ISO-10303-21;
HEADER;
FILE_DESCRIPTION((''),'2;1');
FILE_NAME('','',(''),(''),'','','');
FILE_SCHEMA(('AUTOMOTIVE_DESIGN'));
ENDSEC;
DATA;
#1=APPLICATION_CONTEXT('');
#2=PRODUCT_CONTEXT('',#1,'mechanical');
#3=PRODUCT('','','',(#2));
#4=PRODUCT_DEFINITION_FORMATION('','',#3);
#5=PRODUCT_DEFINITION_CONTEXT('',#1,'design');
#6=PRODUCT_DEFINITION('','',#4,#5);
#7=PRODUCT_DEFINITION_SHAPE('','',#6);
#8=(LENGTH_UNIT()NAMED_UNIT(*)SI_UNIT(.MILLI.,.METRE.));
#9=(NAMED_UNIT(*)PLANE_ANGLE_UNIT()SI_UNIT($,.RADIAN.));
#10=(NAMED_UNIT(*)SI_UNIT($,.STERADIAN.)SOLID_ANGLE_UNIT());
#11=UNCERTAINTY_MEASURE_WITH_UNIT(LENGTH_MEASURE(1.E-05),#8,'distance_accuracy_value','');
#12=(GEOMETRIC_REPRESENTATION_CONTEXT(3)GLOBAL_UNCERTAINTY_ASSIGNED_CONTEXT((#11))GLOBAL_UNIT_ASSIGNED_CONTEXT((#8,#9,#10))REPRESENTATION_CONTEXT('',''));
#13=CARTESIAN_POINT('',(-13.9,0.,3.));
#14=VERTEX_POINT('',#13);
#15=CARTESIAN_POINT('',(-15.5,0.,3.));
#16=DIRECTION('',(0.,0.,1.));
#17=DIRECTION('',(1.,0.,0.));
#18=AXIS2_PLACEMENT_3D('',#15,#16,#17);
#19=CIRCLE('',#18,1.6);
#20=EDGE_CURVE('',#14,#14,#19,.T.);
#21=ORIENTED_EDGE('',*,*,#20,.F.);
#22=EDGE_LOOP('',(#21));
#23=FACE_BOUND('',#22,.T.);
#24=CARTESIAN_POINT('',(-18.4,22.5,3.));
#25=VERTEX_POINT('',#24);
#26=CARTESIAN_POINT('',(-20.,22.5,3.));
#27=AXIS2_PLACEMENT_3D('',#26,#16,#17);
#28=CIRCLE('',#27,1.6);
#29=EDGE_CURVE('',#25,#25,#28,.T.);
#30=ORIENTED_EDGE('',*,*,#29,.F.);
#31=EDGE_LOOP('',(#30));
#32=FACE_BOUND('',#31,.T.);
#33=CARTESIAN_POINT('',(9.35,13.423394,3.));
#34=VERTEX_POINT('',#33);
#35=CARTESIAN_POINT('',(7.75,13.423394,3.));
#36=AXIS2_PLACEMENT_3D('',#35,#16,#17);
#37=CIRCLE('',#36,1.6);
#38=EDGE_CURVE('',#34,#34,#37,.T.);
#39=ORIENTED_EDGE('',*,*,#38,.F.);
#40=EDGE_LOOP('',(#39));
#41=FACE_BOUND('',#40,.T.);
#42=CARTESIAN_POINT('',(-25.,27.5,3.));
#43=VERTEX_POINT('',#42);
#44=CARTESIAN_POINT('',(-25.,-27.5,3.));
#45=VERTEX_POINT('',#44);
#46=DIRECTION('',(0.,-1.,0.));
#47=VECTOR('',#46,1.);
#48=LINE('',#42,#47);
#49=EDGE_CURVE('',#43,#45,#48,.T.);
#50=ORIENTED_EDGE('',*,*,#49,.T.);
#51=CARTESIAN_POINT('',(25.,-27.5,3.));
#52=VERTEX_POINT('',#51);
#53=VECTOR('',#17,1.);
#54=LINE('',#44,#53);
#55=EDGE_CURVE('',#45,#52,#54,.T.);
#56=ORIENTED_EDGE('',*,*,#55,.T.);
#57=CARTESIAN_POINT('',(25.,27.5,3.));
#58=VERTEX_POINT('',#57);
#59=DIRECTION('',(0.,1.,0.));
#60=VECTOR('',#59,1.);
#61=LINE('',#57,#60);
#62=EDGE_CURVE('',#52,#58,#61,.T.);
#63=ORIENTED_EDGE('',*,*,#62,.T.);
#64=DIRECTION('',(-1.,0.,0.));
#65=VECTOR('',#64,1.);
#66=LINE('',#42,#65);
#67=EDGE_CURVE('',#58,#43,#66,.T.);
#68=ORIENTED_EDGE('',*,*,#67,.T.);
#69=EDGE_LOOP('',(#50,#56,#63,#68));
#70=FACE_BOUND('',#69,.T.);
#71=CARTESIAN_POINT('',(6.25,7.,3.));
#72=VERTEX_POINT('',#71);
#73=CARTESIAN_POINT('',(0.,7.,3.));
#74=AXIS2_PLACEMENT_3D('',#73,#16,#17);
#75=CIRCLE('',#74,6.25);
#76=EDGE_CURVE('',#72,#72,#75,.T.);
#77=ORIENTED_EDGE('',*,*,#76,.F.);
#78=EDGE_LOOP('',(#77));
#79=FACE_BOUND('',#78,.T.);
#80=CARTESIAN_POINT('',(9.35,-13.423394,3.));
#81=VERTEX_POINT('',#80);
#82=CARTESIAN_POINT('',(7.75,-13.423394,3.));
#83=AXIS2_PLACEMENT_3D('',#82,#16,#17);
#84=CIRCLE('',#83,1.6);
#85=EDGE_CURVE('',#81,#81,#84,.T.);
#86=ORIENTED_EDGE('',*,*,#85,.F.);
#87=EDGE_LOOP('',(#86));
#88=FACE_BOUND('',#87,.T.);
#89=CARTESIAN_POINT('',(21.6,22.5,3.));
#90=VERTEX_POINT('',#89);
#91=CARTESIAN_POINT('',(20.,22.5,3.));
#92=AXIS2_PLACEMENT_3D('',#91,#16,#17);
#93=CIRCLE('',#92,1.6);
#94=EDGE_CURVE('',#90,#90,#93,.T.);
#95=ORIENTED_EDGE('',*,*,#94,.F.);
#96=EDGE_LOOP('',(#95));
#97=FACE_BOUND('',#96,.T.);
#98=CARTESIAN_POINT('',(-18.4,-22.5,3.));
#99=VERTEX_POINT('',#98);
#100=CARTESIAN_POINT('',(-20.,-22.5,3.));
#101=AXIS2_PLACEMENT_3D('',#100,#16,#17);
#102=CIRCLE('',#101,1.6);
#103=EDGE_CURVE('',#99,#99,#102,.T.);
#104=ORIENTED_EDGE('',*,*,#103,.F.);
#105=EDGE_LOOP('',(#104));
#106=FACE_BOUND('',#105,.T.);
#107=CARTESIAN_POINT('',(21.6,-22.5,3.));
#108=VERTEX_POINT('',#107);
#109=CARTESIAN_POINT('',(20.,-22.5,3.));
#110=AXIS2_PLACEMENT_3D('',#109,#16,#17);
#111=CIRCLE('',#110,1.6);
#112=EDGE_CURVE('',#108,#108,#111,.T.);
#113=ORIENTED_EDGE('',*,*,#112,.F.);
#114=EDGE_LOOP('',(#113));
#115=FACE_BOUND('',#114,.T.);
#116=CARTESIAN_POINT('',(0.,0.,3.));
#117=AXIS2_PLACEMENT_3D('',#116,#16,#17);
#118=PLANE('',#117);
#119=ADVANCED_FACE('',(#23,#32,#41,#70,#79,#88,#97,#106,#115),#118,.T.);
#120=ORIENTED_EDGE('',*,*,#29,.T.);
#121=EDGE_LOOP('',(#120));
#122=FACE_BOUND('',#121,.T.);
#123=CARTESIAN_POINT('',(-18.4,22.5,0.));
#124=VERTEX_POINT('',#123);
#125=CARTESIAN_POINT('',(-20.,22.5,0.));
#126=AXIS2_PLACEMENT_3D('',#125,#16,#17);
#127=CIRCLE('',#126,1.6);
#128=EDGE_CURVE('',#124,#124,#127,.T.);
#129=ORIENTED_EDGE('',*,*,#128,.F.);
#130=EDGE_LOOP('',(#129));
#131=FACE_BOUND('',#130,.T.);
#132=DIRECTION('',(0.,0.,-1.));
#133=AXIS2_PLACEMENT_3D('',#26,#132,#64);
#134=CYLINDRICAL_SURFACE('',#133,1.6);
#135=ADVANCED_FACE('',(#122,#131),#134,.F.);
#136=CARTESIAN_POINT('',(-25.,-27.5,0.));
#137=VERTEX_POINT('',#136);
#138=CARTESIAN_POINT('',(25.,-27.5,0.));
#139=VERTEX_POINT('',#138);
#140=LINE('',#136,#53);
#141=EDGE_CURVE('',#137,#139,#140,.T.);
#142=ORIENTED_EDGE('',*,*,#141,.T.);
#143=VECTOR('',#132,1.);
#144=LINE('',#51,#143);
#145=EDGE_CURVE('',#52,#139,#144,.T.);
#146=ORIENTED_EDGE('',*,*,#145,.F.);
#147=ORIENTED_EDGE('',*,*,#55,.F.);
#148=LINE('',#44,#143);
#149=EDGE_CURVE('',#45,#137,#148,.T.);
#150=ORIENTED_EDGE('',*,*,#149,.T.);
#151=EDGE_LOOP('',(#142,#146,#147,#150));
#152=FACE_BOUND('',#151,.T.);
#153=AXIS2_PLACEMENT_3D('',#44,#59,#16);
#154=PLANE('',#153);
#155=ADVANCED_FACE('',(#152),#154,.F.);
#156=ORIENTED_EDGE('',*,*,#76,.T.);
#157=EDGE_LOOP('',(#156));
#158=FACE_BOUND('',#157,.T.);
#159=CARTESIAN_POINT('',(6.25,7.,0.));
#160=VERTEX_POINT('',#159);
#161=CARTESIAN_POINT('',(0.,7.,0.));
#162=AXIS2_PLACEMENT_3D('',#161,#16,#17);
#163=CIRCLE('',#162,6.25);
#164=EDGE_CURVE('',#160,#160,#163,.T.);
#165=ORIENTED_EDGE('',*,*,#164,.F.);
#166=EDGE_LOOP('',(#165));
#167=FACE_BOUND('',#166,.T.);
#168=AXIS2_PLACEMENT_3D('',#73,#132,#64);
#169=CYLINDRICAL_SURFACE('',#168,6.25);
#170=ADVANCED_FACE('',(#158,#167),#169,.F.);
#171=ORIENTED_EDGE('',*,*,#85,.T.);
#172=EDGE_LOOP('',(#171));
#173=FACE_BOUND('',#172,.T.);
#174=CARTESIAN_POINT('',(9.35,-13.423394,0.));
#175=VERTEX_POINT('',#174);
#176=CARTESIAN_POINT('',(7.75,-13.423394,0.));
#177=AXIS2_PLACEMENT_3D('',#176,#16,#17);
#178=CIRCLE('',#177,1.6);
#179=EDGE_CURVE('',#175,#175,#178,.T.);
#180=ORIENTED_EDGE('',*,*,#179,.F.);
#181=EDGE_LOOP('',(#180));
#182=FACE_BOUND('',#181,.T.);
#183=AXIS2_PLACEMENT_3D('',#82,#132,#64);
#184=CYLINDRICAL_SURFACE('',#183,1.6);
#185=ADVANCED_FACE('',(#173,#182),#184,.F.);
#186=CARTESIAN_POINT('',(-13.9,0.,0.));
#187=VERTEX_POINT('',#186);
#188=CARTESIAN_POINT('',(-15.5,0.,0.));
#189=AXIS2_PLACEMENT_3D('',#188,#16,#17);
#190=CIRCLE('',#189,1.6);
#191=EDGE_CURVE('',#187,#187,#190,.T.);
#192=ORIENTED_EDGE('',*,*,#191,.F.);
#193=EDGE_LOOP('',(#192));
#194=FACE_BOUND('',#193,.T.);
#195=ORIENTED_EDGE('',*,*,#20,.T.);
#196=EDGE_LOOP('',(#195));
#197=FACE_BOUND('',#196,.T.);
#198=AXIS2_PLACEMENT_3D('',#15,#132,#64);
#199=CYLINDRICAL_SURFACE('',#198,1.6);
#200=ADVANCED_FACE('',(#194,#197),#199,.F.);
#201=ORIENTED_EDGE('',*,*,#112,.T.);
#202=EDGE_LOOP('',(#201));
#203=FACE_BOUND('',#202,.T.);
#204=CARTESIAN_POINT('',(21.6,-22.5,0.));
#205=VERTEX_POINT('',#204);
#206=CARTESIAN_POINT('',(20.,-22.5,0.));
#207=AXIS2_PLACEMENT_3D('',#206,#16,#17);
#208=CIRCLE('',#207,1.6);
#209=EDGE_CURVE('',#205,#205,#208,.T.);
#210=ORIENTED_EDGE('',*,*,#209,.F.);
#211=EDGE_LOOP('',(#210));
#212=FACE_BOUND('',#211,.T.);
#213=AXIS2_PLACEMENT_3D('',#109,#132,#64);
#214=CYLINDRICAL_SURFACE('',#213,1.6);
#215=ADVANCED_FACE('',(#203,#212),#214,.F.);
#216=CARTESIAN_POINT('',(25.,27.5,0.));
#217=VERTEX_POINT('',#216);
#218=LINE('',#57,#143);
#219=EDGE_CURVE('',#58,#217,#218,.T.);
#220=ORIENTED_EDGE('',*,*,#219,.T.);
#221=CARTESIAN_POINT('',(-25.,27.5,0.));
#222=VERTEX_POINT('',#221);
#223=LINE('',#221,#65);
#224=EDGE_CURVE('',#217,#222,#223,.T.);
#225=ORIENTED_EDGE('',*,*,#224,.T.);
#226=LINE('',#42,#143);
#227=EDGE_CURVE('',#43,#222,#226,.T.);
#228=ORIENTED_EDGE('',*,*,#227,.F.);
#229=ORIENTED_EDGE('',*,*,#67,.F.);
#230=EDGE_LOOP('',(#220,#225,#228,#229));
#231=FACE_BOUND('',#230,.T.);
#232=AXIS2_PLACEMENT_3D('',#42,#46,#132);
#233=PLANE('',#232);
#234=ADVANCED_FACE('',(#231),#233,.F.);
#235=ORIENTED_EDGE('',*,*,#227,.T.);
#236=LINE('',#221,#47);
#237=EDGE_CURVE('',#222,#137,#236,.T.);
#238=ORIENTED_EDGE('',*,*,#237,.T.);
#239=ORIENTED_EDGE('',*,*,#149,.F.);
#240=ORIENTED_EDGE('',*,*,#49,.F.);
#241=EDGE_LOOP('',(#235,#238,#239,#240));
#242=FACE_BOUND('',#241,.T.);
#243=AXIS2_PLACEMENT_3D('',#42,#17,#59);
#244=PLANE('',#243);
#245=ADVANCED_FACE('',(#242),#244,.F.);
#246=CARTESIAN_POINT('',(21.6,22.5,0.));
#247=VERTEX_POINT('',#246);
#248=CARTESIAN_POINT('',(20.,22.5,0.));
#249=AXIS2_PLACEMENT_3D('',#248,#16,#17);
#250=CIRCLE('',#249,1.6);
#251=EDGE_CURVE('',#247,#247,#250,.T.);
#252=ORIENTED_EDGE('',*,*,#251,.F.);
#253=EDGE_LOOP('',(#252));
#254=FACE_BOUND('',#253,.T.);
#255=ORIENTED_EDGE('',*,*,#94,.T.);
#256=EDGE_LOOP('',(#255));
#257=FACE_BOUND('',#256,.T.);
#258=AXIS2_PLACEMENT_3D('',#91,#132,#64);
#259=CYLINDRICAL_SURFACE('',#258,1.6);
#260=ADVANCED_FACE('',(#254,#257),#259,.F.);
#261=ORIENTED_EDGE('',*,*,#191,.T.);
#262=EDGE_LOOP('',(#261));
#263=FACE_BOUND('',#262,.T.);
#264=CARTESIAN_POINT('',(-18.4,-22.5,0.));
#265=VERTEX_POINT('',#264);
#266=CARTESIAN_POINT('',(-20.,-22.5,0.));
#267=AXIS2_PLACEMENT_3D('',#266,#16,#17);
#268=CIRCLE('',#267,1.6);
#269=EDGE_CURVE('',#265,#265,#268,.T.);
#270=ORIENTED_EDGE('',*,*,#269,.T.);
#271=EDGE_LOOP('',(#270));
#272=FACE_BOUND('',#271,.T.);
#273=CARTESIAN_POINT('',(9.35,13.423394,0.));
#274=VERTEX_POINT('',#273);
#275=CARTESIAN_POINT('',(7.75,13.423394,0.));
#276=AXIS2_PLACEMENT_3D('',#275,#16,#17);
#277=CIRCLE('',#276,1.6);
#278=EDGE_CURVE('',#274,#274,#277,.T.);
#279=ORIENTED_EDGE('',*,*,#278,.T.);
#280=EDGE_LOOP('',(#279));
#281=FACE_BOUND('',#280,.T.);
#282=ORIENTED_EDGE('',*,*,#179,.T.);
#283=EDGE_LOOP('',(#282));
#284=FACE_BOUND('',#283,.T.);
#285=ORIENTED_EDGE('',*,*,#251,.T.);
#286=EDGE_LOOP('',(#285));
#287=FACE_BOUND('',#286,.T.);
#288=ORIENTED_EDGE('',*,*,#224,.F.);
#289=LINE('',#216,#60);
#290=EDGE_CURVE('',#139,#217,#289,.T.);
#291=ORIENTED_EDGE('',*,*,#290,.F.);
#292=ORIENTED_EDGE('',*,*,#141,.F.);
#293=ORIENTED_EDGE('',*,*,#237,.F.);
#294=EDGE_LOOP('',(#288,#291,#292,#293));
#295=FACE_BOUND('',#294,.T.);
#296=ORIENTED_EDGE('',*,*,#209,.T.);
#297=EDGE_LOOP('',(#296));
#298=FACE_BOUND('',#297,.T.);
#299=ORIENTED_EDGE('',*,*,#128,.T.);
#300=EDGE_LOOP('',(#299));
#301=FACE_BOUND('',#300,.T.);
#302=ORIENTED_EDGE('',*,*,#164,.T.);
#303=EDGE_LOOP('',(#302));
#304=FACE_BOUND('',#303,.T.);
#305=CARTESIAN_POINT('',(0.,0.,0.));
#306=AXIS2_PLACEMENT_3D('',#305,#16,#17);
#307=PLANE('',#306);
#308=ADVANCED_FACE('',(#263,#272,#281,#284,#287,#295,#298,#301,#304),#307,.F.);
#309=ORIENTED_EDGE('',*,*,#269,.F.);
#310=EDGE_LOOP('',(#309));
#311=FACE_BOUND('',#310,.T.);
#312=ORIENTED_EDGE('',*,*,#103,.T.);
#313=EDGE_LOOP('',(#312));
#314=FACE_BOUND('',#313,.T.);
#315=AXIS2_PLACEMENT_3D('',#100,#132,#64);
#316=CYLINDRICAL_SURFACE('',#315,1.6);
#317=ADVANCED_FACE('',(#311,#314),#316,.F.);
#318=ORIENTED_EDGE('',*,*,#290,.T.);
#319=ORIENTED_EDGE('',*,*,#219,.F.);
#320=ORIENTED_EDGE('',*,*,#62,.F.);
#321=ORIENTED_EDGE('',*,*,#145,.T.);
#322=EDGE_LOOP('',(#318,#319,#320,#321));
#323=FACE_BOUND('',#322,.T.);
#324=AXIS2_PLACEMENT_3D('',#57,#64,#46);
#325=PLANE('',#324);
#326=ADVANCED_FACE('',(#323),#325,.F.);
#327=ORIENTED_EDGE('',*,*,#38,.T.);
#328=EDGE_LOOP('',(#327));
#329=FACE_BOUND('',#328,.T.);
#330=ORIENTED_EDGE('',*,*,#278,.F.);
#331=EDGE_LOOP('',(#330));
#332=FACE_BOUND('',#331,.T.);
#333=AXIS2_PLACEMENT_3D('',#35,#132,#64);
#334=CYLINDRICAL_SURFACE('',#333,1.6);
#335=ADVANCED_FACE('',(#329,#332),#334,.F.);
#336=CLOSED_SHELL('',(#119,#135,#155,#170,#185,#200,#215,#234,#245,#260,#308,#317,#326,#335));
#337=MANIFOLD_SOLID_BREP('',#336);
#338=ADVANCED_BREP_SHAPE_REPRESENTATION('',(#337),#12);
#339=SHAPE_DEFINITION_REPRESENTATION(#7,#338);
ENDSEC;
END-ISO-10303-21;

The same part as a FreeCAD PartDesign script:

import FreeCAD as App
import Part
import Sketcher

V = App.Vector
Q = App.Units.Quantity


def add_polygon(sketch, points):
    """Adds a closed chain of lines whose ends are joined by coincident constraints."""
    first, n = sketch.GeometryCount, len(points)
    for a, b in zip(points, points[1:] + points[:1]):
        sketch.addGeometry(Part.LineSegment(App.Vector(*a, 0), App.Vector(*b, 0)), False)
    for i in range(n):
        sketch.addConstraint(Sketcher.Constraint("Coincident", first + i, 2, first + (i + 1) % n, 1))

doc = App.newDocument("Part")
body = doc.addObject("PartDesign::Body", "Body")

sketch1 = body.newObject("Sketcher::SketchObject", "Sketch")
sketch1.AttachmentSupport = (doc.getObject("XY_Plane"), [""])
sketch1.MapMode = "FlatFace"
add_polygon(sketch1, [(-25, 27.5), (-25, -27.5), (25, -27.5), (25, 27.5)])
sketch1.addGeometry(Part.Circle(V(-20, -22.5, 0), V(0, 0, 1), 1.6), False)
sketch1.addGeometry(Part.Circle(V(7.75, -13.423394, 0), V(0, 0, 1), 1.6), False)
sketch1.addGeometry(Part.Circle(V(20, -22.5, 0), V(0, 0, 1), 1.6), False)
sketch1.addGeometry(Part.Circle(V(-15.5, 0, 0), V(0, 0, 1), 1.6), False)
sketch1.addGeometry(Part.Circle(V(-20, 22.5, 0), V(0, 0, 1), 1.6), False)
sketch1.addGeometry(Part.Circle(V(0, 7, 0), V(0, 0, 1), 6.25), False)
sketch1.addGeometry(Part.Circle(V(7.75, 13.423394, 0), V(0, 0, 1), 1.6), False)
sketch1.addGeometry(Part.Circle(V(20, 22.5, 0), V(0, 0, 1), 1.6), False)
sketch1.addConstraint(Sketcher.Constraint("Vertical", 0))
sketch1.addConstraint(Sketcher.Constraint("Horizontal", 1))
sketch1.addConstraint(Sketcher.Constraint("Vertical", 2))
sketch1.addConstraint(Sketcher.Constraint("Horizontal", 3))
sketch1.addConstraint(Sketcher.Constraint("Equal", 4, 5))
sketch1.addConstraint(Sketcher.Constraint("Equal", 5, 6))
sketch1.addConstraint(Sketcher.Constraint("Equal", 6, 7))
sketch1.addConstraint(Sketcher.Constraint("Equal", 7, 8))
sketch1.addConstraint(Sketcher.Constraint("Equal", 8, 10))
sketch1.addConstraint(Sketcher.Constraint("Equal", 10, 11))
sketch1.addConstraint(Sketcher.Constraint("Symmetric", 6, 3, 8, 3, -1, 1))
sketch1.addConstraint(Sketcher.Constraint("Symmetric", 4, 3, 11, 3, -1, 1))
sketch1.addConstraint(Sketcher.Constraint("Symmetric", 0, 2, 2, 2, -1, 1))
sketch1.addConstraint(Sketcher.Constraint("Symmetric", 4, 3, 6, 3, -2))
sketch1.addConstraint(Sketcher.Constraint("Symmetric", 5, 3, 10, 3, -1))
sketch1.addConstraint(Sketcher.Constraint("PointOnObject", 7, 3, -1))
sketch1.addConstraint(Sketcher.Constraint("PointOnObject", 9, 3, -2))
sketch1.addConstraint(Sketcher.Constraint("Diameter", 4, Q("3.2 mm")))
sketch1.addConstraint(Sketcher.Constraint("Diameter", 9, Q("12.5 mm")))
sketch1.addConstraint(Sketcher.Constraint("DistanceX", 1, 1, 1, 2, Q("50 mm")))
sketch1.addConstraint(Sketcher.Constraint("DistanceY", 0, 2, 0, 1, Q("55 mm")))
sketch1.addConstraint(Sketcher.Constraint("DistanceX", 4, 3, -1, 1, Q("20 mm")))
sketch1.addConstraint(Sketcher.Constraint("DistanceY", -1, 1, 9, 3, Q("7 mm")))
sketch1.addConstraint(Sketcher.Constraint("DistanceY", 4, 3, 8, 3, Q("45 mm")))
sketch1.addConstraint(Sketcher.Constraint("DistanceX", 7, 3, -1, 1, Q("15.5 mm")))
sketch1.addConstraint(Sketcher.Constraint("DistanceX", -1, 1, 5, 3, Q("7.75 mm")))
sketch1.addConstraint(Sketcher.Constraint("DistanceY", 5, 3, -1, 1, Q("13.423394 mm")))
pad1 = body.newObject("PartDesign::Pad", "Pad")
pad1.Profile = sketch1
pad1.Length = 3

doc.recompute()
